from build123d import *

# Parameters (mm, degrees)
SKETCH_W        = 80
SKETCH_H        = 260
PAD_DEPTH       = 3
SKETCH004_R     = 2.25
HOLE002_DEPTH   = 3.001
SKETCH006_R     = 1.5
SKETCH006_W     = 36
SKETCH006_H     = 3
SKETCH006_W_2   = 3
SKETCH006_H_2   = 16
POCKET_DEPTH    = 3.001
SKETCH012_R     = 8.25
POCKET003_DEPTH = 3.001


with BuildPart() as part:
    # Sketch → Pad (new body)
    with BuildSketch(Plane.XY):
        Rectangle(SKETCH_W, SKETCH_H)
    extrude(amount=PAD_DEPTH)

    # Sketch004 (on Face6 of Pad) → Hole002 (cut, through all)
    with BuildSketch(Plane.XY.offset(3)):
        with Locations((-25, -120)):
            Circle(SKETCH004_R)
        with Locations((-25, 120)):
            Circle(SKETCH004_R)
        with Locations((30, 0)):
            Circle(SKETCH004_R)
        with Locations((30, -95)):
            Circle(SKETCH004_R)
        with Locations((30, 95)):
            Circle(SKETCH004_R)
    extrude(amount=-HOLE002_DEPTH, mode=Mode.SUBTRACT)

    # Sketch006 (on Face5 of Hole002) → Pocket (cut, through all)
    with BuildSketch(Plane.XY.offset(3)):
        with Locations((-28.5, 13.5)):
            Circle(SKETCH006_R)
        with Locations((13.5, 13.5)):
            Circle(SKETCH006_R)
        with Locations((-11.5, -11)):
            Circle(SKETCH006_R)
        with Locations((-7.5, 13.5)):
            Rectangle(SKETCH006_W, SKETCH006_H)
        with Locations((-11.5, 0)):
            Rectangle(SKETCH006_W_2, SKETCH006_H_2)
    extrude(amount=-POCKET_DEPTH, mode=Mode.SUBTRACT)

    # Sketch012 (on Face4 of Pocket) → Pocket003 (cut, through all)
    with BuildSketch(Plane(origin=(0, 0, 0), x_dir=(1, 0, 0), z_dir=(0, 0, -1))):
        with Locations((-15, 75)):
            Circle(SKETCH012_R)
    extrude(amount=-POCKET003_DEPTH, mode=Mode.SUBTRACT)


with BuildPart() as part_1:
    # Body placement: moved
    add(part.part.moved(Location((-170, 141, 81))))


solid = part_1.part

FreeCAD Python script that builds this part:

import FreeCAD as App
import Part
import Sketcher

V = App.Vector
Q = App.Units.Quantity

doc = App.newDocument("Part")
params = doc.addObject("Spreadsheet::Sheet", "Params")
for row, (alias, value) in enumerate([
    ("sketch1_width", "80 mm"),
    ("sketch1_height", "260 mm"),
    ("pad1_length", "3 mm"),
    ("sketch2_diameter", "4.5 mm"),
    ("sketch3_diameter", "3 mm"),
    ("sketch3_width", "36 mm"),
    ("sketch3_width2", "3 mm"),
    ("sketch3_height", "16 mm"),
    ("sketch4_diameter", "16.5 mm"),
], start=1):
    params.set(f"A{row}", alias)
    params.set(f"B{row}", "=" + value)
    params.setAlias(f"B{row}", alias)

body = doc.addObject("PartDesign::Body", "Body")

sketch1 = doc.addObject("Sketcher::SketchObject", "Sketch")
body.addObject(sketch1)
sketch1.AttachmentSupport = (doc.XY_Plane, [""])
sketch1.MapMode = "FlatFace"
sketch1.addGeometry([
    Part.LineSegment(V(-40, 130, 0), V(-40, -130, 0)),
    Part.LineSegment(V(-40, -130, 0), V(40, -130, 0)),
    Part.LineSegment(V(40, -130, 0), V(40, 130, 0)),
    Part.LineSegment(V(40, 130, 0), V(-40, 130, 0)),
], False)
sketch1.addConstraint([
    Sketcher.Constraint("Coincident", 0, 2, 1, 1),
    Sketcher.Constraint("Coincident", 1, 2, 2, 1),
    Sketcher.Constraint("Coincident", 2, 2, 3, 1),
    Sketcher.Constraint("Coincident", 3, 2, 0, 1),
    Sketcher.Constraint("Vertical", 0),
    Sketcher.Constraint("Horizontal", 1),
    Sketcher.Constraint("Vertical", 2),
    Sketcher.Constraint("Horizontal", 3),
    Sketcher.Constraint("Symmetric", 0, 2, 2, 2, -1, 1),
    Sketcher.Constraint("DistanceX", 1, 1, 1, 2, Q("80 mm")),
    Sketcher.Constraint("DistanceY", 0, 2, 0, 1, Q("260 mm")),
])
sketch1.setExpression("Constraints[9]", "Params.sketch1_width")
sketch1.setExpression("Constraints[10]", "Params.sketch1_height")
pad1 = doc.addObject("PartDesign::Pad", "Pad")
body.addObject(pad1)
pad1.Profile = sketch1
pad1.setExpression("Length", "Params.pad1_length")

sketch2 = doc.addObject("Sketcher::SketchObject", "Sketch001")
body.addObject(sketch2)
sketch2.AttachmentSupport = (doc.XY_Plane, [""])
sketch2.MapMode = "FlatFace"
sketch2.AttachmentOffset = App.Placement(V(0, 0, 3), App.Rotation())
sketch2.addGeometry([
    Part.Circle(V(-25, -120, 0), V(0, 0, 1), 2.25),
    Part.Circle(V(-25, 120, 0), V(0, 0, 1), 2.25),
    Part.Circle(V(30, 0, 0), V(0, 0, 1), 2.25),
    Part.Circle(V(30, -95, 0), V(0, 0, 1), 2.25),
    Part.Circle(V(30, 95, 0), V(0, 0, 1), 2.25),
], False)
sketch2.addConstraint([
    Sketcher.Constraint("Equal", 0, 1),
    Sketcher.Constraint("Equal", 1, 2),
    Sketcher.Constraint("Equal", 2, 3),
    Sketcher.Constraint("Equal", 3, 4),
    Sketcher.Constraint("Symmetric", 0, 3, 1, 3, -1),
    Sketcher.Constraint("Symmetric", 3, 3, 4, 3, -1),
    Sketcher.Constraint("PointOnObject", 2, 3, -1),
    Sketcher.Constraint("Vertical", 2, 3, 3, 3),
    Sketcher.Constraint("Diameter", 0, Q("4.5 mm")),
    Sketcher.Constraint("DistanceX", 0, 3, -1, 1, Q("25 mm")),
    Sketcher.Constraint("DistanceY", 0, 3, -1, 1, Q("120 mm")),
    Sketcher.Constraint("DistanceX", -1, 1, 2, 3, Q("30 mm")),
    Sketcher.Constraint("DistanceY", 3, 3, -1, 1, Q("95 mm")),
])
sketch2.setExpression("Constraints[8]", "Params.sketch2_diameter")
pocket1 = doc.addObject("PartDesign::Pocket", "Pocket")
body.addObject(pocket1)
pocket1.Profile = sketch2
pocket1.Type = "ThroughAll"

sketch3 = doc.addObject("Sketcher::SketchObject", "Sketch002")
body.addObject(sketch3)
sketch3.AttachmentSupport = (doc.XY_Plane, [""])
sketch3.MapMode = "FlatFace"
sketch3.AttachmentOffset = App.Placement(V(0, 0, 3), App.Rotation())
sketch3.addGeometry([
    Part.Circle(V(-28.5, 13.5, 0), V(0, 0, 1), 1.5),
    Part.Circle(V(13.5, 13.5, 0), V(0, 0, 1), 1.5),
    Part.Circle(V(-11.5, -11, 0), V(0, 0, 1), 1.5),
    Part.LineSegment(V(-25.5, 15, 0), V(-25.5, 12, 0)),
    Part.LineSegment(V(-25.5, 12, 0), V(10.5, 12, 0)),
    Part.LineSegment(V(10.5, 12, 0), V(10.5, 15, 0)),
    Part.LineSegment(V(10.5, 15, 0), V(-25.5, 15, 0)),
    Part.LineSegment(V(-13, 8, 0), V(-13, -8, 0)),
    Part.LineSegment(V(-13, -8, 0), V(-10, -8, 0)),
    Part.LineSegment(V(-10, -8, 0), V(-10, 8, 0)),
    Part.LineSegment(V(-10, 8, 0), V(-13, 8, 0)),
], False)
sketch3.addConstraint([
    Sketcher.Constraint("Coincident", 3, 2, 4, 1),
    Sketcher.Constraint("Coincident", 4, 2, 5, 1),
    Sketcher.Constraint("Coincident", 5, 2, 6, 1),
    Sketcher.Constraint("Coincident", 6, 2, 3, 1),
    Sketcher.Constraint("Coincident", 7, 2, 8, 1),
    Sketcher.Constraint("Coincident", 8, 2, 9, 1),
    Sketcher.Constraint("Coincident", 9, 2, 10, 1),
    Sketcher.Constraint("Coincident", 10, 2, 7, 1),
    Sketcher.Constraint("Vertical", 3),
    Sketcher.Constraint("Horizontal", 4),
    Sketcher.Constraint("Vertical", 5),
    Sketcher.Constraint("Horizontal", 6),
    Sketcher.Constraint("Vertical", 7),
    Sketcher.Constraint("Horizontal", 8),
    Sketcher.Constraint("Vertical", 9),
    Sketcher.Constraint("Horizontal", 10),
    Sketcher.Constraint("Equal", 0, 1),
    Sketcher.Constraint("Equal", 1, 2),
    Sketcher.Constraint("Horizontal", 0, 3, 1, 3),
    Sketcher.Constraint("Equal", 10, 3),
    Sketcher.Constraint("Diameter", 0, Q("3 mm")),
    Sketcher.Constraint("DistanceX", 4, 1, 4, 2, Q("36 mm")),
    Sketcher.Constraint("DistanceX", 8, 1, 8, 2, Q("3 mm")),
    Sketcher.Constraint("DistanceY", 7, 2, 7, 1, Q("16 mm")),
    Sketcher.Constraint("DistanceY", 2, 3, -1, 1, Q("11 mm")),
    Sketcher.Constraint("DistanceY", -1, 1, 3, 2, Q("12 mm")),
    Sketcher.Constraint("DistanceX", 7, 2, -1, 1, Q("13 mm")),
    Sketcher.Constraint("DistanceY", 7, 2, -1, 1, Q("8 mm")),
    Sketcher.Constraint("DistanceX", 0, 3, 1, 3, Q("42 mm")),
    Sketcher.Constraint("DistanceX", 0, 3, 2, 3, Q("17 mm")),
    Sketcher.Constraint("DistanceX", 0, 3, 3, 2, Q("3 mm")),
    Sketcher.Constraint("DistanceX", 0, 3, -1, 1, Q("28.5 mm")),
    Sketcher.Constraint("DistanceY", -1, 1, 0, 3, Q("13.5 mm")),
])
sketch3.setExpression("Constraints[20]", "Params.sketch3_diameter")
sketch3.setExpression("Constraints[21]", "Params.sketch3_width")
sketch3.setExpression("Constraints[22]", "Params.sketch3_width2")
sketch3.setExpression("Constraints[23]", "Params.sketch3_height")
pocket2 = doc.addObject("PartDesign::Pocket", "Pocket001")
body.addObject(pocket2)
pocket2.Profile = sketch3
pocket2.Type = "ThroughAll"

sketch4 = doc.addObject("Sketcher::SketchObject", "Sketch003")
body.addObject(sketch4)
sketch4.AttachmentSupport = (doc.XY_Plane, [""])
sketch4.MapMode = "FlatFace"
sketch4.addGeometry(Part.Circle(V(-15, -75, 0), V(0, 0, 1), 8.25), False)
sketch4.addConstraint([
    Sketcher.Constraint("Diameter", 0, Q("16.5 mm")),
    Sketcher.Constraint("DistanceX", 0, 3, -1, 1, Q("15 mm")),
    Sketcher.Constraint("DistanceY", 0, 3, -1, 1, Q("75 mm")),
])
sketch4.setExpression("Constraints[0]", "Params.sketch4_diameter")
pocket3 = doc.addObject("PartDesign::Pocket", "Pocket002")
body.addObject(pocket3)
pocket3.Profile = sketch4
pocket3.Type = "ThroughAll"
pocket3.Reversed = True
body2 = doc.addObject("PartDesign::Body", "Body001")
doc.recompute()

body.Placement = App.Placement(V(-170, 141, 81), App.Rotation(V(0, 0, 1), 0))
boolean = doc.addObject("PartDesign::Boolean", "Boolean")
body2.addObject(boolean)
boolean.Type = "Fuse"
boolean.addObjects([body])

doc.recompute()
